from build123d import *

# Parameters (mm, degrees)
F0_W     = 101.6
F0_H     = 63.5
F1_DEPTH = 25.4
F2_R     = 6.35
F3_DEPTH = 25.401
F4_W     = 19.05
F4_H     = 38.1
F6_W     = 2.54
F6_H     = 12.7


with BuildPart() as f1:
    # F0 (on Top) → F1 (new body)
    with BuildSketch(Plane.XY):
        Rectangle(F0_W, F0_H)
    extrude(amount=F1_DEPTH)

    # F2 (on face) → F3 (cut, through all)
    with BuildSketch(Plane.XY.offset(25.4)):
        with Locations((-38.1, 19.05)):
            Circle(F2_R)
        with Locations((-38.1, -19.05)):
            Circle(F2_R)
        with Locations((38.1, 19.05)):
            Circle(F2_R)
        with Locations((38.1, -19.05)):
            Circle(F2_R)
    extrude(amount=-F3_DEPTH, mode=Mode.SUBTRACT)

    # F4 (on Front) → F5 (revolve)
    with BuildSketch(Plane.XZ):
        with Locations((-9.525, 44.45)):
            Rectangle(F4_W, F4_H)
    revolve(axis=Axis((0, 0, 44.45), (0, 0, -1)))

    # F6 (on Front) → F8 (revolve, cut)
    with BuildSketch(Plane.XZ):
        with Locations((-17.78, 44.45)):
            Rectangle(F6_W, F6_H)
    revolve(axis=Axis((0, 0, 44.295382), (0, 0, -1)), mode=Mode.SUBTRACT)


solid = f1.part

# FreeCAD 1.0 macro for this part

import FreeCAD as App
import Part
import Sketcher
from FreeCAD import Vector
Q = App.Units.Quantity

doc = App.newDocument("Part")
body = doc.addObject("PartDesign::Body", "Body")

sketch1 = doc.addObject("Sketcher::SketchObject", "Sketch")
body.addObject(sketch1)
sketch1.AttachmentSupport = (doc.XY_Plane, [""])
sketch1.MapMode = "FlatFace"
sketch1.addGeometry([
    Part.LineSegment(Vector(-51, 32, 0), Vector(-51, -32, 0)),
    Part.LineSegment(Vector(-51, -32, 0), Vector(51, -32, 0)),
    Part.LineSegment(Vector(51, -32, 0), Vector(51, 32, 0)),
    Part.LineSegment(Vector(51, 32, 0), Vector(-51, 32, 0)),
], False)
sketch1.addConstraint([
    Sketcher.Constraint("Coincident", 0, 2, 1, 1),
    Sketcher.Constraint("Coincident", 1, 2, 2, 1),
    Sketcher.Constraint("Coincident", 2, 2, 3, 1),
    Sketcher.Constraint("Coincident", 3, 2, 0, 1),
    Sketcher.Constraint("Vertical", 0),
    Sketcher.Constraint("Horizontal", 1),
    Sketcher.Constraint("Vertical", 2),
    Sketcher.Constraint("Horizontal", 3),
    Sketcher.Constraint("Symmetric", 0, 2, 2, 2, -1, 1),
    Sketcher.Constraint("DistanceX", 1, 1, 1, 2, Q("4 in")),
    Sketcher.Constraint("DistanceY", 0, 2, 0, 1, Q("2.5 in")),
])
pad1 = doc.addObject("PartDesign::Pad", "Pad")
body.addObject(pad1)
pad1.Profile = sketch1
pad1.Length = Q("1 in")

sketch2 = doc.addObject("Sketcher::SketchObject", "Sketch001")
body.addObject(sketch2)
sketch2.AttachmentSupport = (doc.XY_Plane, [""])
sketch2.MapMode = "FlatFace"
sketch2.AttachmentOffset = App.Placement(Vector(0, 0, 1 * 25.4), App.Rotation())
sketch2.addGeometry([
    Part.Circle(Vector(-38, 19, 0), Vector(0, 0, 1), 6),
    Part.Circle(Vector(-38, -19, 0), Vector(0, 0, 1), 6),
    Part.Circle(Vector(38, 19, 0), Vector(0, 0, 1), 6),
    Part.Circle(Vector(38, -19, 0), Vector(0, 0, 1), 6),
], False)
sketch2.addConstraint([
    Sketcher.Constraint("Equal", 0, 1),
    Sketcher.Constraint("Equal", 1, 2),
    Sketcher.Constraint("Equal", 2, 3),
    Sketcher.Constraint("Symmetric", 1, 3, 2, 3, -1, 1),
    Sketcher.Constraint("Symmetric", 0, 3, 3, 3, -1, 1),
    Sketcher.Constraint("Symmetric", 0, 3, 2, 3, -2),
    Sketcher.Constraint("Diameter", 0, Q("0.5 in")),
    Sketcher.Constraint("DistanceX", 0, 3, 2, 3, Q("3 in")),
    Sketcher.Constraint("DistanceY", 1, 3, 0, 3, Q("1.5 in")),
])
pocket1 = doc.addObject("PartDesign::Pocket", "Pocket")
body.addObject(pocket1)
pocket1.Profile = sketch2
pocket1.Type = "ThroughAll"

sketch3 = doc.addObject("Sketcher::SketchObject", "Sketch002")
body.addObject(sketch3)
sketch3.AttachmentSupport = (doc.XZ_Plane, [""])
sketch3.MapMode = "FlatFace"
sketch3.addGeometry([
    Part.LineSegment(Vector(-19, 64, 0), Vector(-19, 25, 0)),
    Part.LineSegment(Vector(-19, 25, 0), Vector(0, 25, 0)),
    Part.LineSegment(Vector(0, 25, 0), Vector(0, 64, 0)),
    Part.LineSegment(Vector(0, 64, 0), Vector(-19, 64, 0)),
], False)
sketch3.addConstraint([
    Sketcher.Constraint("Coincident", 0, 2, 1, 1),
    Sketcher.Constraint("Coincident", 1, 2, 2, 1),
    Sketcher.Constraint("Coincident", 2, 2, 3, 1),
    Sketcher.Constraint("Coincident", 3, 2, 0, 1),
    Sketcher.Constraint("Vertical", 0),
    Sketcher.Constraint("Horizontal", 1),
    Sketcher.Constraint("Vertical", 2),
    Sketcher.Constraint("Horizontal", 3),
    Sketcher.Constraint("PointOnObject", 1, 2, -2),
    Sketcher.Constraint("DistanceY", 0, 2, 0, 1, Q("1.5 in")),
    Sketcher.Constraint("DistanceY", -1, 1, 0, 2, Q("1 in")),
    Sketcher.Constraint("DistanceX", 1, 1, 1, 2, Q("0.75 in")),
])
revolution = doc.addObject("PartDesign::Revolution", "Revolution")
body.addObject(revolution)
revolution.Profile = sketch3
revolution.ReferenceAxis = (sketch3, ["V_Axis"])
revolution.Angle = 360

sketch4 = doc.addObject("Sketcher::SketchObject", "Sketch003")
body.addObject(sketch4)
sketch4.AttachmentSupport = (doc.XZ_Plane, [""])
sketch4.MapMode = "FlatFace"
sketch4.addGeometry([
    Part.LineSegment(Vector(-19.1, 50.8, 0), Vector(-19.1, 38.1, 0)),
    Part.LineSegment(Vector(-19.1, 38.1, 0), Vector(-16.5, 38.1, 0)),
    Part.LineSegment(Vector(-16.5, 38.1, 0), Vector(-16.5, 50.8, 0)),
    Part.LineSegment(Vector(-16.5, 50.8, 0), Vector(-19.1, 50.8, 0)),
], False)
sketch4.addConstraint([
    Sketcher.Constraint("Coincident", 0, 2, 1, 1),
    Sketcher.Constraint("Coincident", 1, 2, 2, 1),
    Sketcher.Constraint("Coincident", 2, 2, 3, 1),
    Sketcher.Constraint("Coincident", 3, 2, 0, 1),
    Sketcher.Constraint("Vertical", 0),
    Sketcher.Constraint("Horizontal", 1),
    Sketcher.Constraint("Vertical", 2),
    Sketcher.Constraint("Horizontal", 3),
    Sketcher.Constraint("DistanceX", 1, 1, 1, 2, Q("0.1 in")),
    Sketcher.Constraint("DistanceY", 0, 2, 0, 1, Q("0.5 in")),
    Sketcher.Constraint("DistanceY", -1, 1, 2, 2, Q("2 in")),
    Sketcher.Constraint("DistanceX", 0, 2, -1, 1, Q("0.75 in")),
])
groove = doc.addObject("PartDesign::Groove", "Groove")
body.addObject(groove)
groove.Profile = sketch4
groove.ReferenceAxis = (sketch4, ["V_Axis"])
groove.Angle = 360

doc.recompute()
